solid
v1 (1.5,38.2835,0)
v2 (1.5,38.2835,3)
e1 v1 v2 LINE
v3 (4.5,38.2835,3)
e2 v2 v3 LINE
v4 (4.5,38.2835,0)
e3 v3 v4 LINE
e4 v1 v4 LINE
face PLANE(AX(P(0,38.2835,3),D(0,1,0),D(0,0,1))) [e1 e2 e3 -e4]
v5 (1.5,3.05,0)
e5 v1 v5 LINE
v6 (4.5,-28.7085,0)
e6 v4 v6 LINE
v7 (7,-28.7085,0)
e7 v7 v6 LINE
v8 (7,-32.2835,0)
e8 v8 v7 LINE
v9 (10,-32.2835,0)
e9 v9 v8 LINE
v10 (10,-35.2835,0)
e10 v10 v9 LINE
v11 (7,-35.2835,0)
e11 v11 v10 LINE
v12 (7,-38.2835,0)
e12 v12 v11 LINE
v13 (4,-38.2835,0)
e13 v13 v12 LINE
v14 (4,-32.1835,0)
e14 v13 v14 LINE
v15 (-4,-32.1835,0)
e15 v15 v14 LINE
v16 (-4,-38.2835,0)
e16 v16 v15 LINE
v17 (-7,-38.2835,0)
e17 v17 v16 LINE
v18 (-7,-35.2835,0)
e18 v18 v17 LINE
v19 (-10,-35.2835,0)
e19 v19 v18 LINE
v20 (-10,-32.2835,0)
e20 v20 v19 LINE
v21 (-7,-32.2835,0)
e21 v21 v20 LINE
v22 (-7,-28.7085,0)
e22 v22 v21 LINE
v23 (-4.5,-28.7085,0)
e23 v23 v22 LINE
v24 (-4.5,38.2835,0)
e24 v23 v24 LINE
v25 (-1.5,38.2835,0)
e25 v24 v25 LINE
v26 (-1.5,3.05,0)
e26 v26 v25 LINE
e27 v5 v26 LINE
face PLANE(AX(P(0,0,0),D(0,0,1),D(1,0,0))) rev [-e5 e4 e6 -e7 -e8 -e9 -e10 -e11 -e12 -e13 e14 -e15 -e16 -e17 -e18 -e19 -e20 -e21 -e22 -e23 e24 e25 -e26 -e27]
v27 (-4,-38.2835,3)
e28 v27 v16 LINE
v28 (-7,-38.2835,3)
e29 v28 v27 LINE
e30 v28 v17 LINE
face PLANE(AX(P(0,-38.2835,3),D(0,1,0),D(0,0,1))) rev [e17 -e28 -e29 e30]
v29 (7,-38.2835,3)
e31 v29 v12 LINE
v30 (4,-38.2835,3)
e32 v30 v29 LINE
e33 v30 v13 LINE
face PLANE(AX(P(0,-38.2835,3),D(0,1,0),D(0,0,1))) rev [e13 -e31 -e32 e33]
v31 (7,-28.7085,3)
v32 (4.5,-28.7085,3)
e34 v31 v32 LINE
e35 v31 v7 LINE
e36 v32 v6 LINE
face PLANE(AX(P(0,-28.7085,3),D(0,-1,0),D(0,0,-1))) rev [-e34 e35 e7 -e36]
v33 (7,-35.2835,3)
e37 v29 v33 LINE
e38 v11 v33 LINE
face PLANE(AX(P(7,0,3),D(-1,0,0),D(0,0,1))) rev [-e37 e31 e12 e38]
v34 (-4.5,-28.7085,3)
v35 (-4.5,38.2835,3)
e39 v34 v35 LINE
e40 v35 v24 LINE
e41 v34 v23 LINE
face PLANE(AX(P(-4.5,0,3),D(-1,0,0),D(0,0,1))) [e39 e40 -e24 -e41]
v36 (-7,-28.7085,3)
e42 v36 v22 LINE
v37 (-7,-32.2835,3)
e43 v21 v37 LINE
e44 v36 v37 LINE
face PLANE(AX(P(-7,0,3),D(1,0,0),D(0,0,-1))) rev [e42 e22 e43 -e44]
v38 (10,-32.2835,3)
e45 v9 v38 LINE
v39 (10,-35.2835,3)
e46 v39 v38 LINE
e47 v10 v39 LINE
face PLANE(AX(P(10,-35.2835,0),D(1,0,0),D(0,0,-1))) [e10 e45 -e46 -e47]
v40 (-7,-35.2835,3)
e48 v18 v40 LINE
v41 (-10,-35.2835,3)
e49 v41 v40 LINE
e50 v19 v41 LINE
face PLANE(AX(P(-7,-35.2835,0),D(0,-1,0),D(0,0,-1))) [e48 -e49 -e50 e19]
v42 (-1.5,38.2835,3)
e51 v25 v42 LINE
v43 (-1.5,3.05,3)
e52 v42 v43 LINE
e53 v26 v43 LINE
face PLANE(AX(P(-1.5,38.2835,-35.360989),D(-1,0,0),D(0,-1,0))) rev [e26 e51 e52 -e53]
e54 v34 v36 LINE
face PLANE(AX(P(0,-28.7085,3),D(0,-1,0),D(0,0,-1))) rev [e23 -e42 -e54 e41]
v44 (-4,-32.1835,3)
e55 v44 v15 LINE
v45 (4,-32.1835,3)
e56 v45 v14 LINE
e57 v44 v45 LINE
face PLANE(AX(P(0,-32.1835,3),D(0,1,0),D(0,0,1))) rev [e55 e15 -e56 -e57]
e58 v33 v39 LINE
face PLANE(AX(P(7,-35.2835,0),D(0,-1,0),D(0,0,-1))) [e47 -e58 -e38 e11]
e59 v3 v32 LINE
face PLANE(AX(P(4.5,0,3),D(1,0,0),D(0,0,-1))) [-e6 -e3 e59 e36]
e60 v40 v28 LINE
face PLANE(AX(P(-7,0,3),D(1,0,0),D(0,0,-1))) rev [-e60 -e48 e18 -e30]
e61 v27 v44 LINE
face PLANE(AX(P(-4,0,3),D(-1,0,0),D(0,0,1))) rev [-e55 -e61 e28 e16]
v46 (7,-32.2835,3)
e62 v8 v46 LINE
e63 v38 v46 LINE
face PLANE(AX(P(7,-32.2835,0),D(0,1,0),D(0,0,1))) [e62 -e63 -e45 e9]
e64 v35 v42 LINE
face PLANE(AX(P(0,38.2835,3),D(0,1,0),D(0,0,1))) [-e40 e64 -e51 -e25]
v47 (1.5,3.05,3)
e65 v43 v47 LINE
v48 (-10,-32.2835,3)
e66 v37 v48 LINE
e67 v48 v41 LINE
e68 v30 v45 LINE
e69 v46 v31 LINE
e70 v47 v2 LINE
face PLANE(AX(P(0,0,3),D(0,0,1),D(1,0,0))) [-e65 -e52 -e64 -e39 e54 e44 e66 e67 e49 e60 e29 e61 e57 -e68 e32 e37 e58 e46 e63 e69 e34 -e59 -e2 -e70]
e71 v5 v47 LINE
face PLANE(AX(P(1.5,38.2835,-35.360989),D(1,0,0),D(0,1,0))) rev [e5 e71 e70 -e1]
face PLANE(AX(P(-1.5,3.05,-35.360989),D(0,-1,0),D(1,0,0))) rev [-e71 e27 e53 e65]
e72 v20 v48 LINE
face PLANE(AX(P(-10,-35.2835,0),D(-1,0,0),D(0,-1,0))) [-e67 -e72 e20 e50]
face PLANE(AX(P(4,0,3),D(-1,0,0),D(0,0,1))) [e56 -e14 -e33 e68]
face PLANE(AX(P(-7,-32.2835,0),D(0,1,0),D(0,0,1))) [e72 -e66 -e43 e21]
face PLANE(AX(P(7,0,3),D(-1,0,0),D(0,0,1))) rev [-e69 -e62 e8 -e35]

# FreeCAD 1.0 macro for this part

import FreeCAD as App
import Part
import Sketcher

V = App.Vector

doc = App.newDocument("Part")
body = doc.addObject("PartDesign::Body", "Body")

# Sketch on XY plane
sketch1 = body.newObject("Sketcher::SketchObject", "Sketch")
sketch1.AttachmentSupport = (doc.getObject("XY_Plane"), [""])
sketch1.MapMode = "FlatFace"
sketch1.addGeometry([
    Part.LineSegment(V(4.5, 38.3, 0), V(-4.5, 38.3, 0)),  # 0
    Part.LineSegment(V(-4.5, 38.3, 0), V(-4.5, -28.7, 0)),  # 1
    Part.LineSegment(V(-4.5, -28.7, 0), V(-7, -28.7, 0)),  # 2
    Part.LineSegment(V(-7, -28.7, 0), V(-7, -38.3, 0)),  # 3
    Part.LineSegment(V(-7, -38.3, 0), V(-4, -38.3, 0)),  # 4
    Part.LineSegment(V(-4, -38.3, 0), V(-4, -32.2, 0)),  # 5
    Part.LineSegment(V(-4, -32.2, 0), V(4, -32.2, 0)),  # 6
    Part.LineSegment(V(4, -32.2, 0), V(4, -38.3, 0)),  # 7
    Part.LineSegment(V(4, -38.3, 0), V(7, -38.3, 0)),  # 8
    Part.LineSegment(V(7, -38.3, 0), V(7, -28.7, 0)),  # 9
    Part.LineSegment(V(7, -28.7, 0), V(4.5, -28.7, 0)),  # 10
    Part.LineSegment(V(4.5, -28.7, 0), V(4.5, 38.3, 0)),  # 11
], False)
sketch1.addConstraint([
    Sketcher.Constraint("Coincident", 0, 2, 1, 1),
    Sketcher.Constraint("Coincident", 1, 2, 2, 1),
    Sketcher.Constraint("Coincident", 2, 2, 3, 1),
    Sketcher.Constraint("Coincident", 3, 2, 4, 1),
    Sketcher.Constraint("Coincident", 4, 2, 5, 1),
    Sketcher.Constraint("Coincident", 5, 2, 6, 1),
    Sketcher.Constraint("Coincident", 6, 2, 7, 1),
    Sketcher.Constraint("Coincident", 7, 2, 8, 1),
    Sketcher.Constraint("Coincident", 8, 2, 9, 1),
    Sketcher.Constraint("Coincident", 9, 2, 10, 1),
    Sketcher.Constraint("Coincident", 10, 2, 11, 1),
    Sketcher.Constraint("Coincident", 11, 2, 0, 1),
    Sketcher.Constraint("Horizontal", 0),
    Sketcher.Constraint("Vertical", 1),
    Sketcher.Constraint("Horizontal", 2),
    Sketcher.Constraint("Vertical", 3),
    Sketcher.Constraint("Horizontal", 4),
    Sketcher.Constraint("Vertical", 5),
    Sketcher.Constraint("Horizontal", 6),
    Sketcher.Constraint("Vertical", 7),
    Sketcher.Constraint("Horizontal", 8),
    Sketcher.Constraint("Vertical", 9),
    Sketcher.Constraint("Horizontal", 10),
    Sketcher.Constraint("Vertical", 11),
    Sketcher.Constraint("Symmetric", 4, 2, 7, 2, -2),
    Sketcher.Constraint("Symmetric", 2, 2, 9, 2, -2),
    Sketcher.Constraint("Equal", 2, 10),
    Sketcher.Constraint("DistanceX", 0, 2, 0, 1, 9.0),
    Sketcher.Constraint("DistanceX", 4, 1, 4, 2, 3.0),
    Sketcher.Constraint("DistanceX", 6, 1, 6, 2, 8.0),
    Sketcher.Constraint("DistanceY", 5, 1, 5, 2, 6.1),
    Sketcher.Constraint("DistanceY", 1, 2, 1, 1, 66.992),
    Sketcher.Constraint("DistanceY", 3, 2, 3, 1, 9.575),
    Sketcher.Constraint("DistanceY", -1, 1, 0, 2, 38.2835),
])
pad1 = body.newObject("PartDesign::Pad", "Pad")
pad1.Profile = sketch1
pad1.Length = 3

# Sketch on XY plane
sketch2 = body.newObject("Sketcher::SketchObject", "Sketch001")
sketch2.AttachmentSupport = (doc.getObject("XY_Plane"), [""])
sketch2.MapMode = "FlatFace"
sketch2.AttachmentOffset = App.Placement(V(0, 0, 3), App.Rotation())
sketch2.addGeometry([
    Part.LineSegment(V(-1.5, 38.3, 0), V(-1.5, 3, 0)),
    Part.LineSegment(V(-1.5, 3, 0), V(1.5, 3, 0)),
    Part.LineSegment(V(1.5, 3, 0), V(1.5, 38.3, 0)),
    Part.LineSegment(V(1.5, 38.3, 0), V(-1.5, 38.3, 0)),
], False)
sketch2.addConstraint([
    Sketcher.Constraint("Coincident", 0, 2, 1, 1),
    Sketcher.Constraint("Coincident", 1, 2, 2, 1),
    Sketcher.Constraint("Coincident", 2, 2, 3, 1),
    Sketcher.Constraint("Coincident", 3, 2, 0, 1),
    Sketcher.Constraint("Vertical", 0),
    Sketcher.Constraint("Horizontal", 1),
    Sketcher.Constraint("Vertical", 2),
    Sketcher.Constraint("Horizontal", 3),
    Sketcher.Constraint("DistanceX", 1, 1, 1, 2, 3.0),
    Sketcher.Constraint("DistanceX", 0, 2, -1, 1, 1.5),
    Sketcher.Constraint("DistanceY", -1, 1, 0, 2, 3.05),
    Sketcher.Constraint("DistanceY", 0, 2, 0, 1, 35.2335),
])
pocket1 = body.newObject("PartDesign::Pocket", "Pocket")
pocket1.Profile = sketch2
pocket1.Length = 3

# Sketch on XY plane
sketch3 = body.newObject("Sketcher::SketchObject", "Sketch002")
sketch3.AttachmentSupport = (doc.getObject("XY_Plane"), [""])
sketch3.MapMode = "FlatFace"
sketch3.AttachmentOffset = App.Placement(V(0, 0, 3), App.Rotation())
sketch3.addGeometry([
    Part.LineSegment(V(-10, -32.3, 0), V(-10, -35.3, 0)),  # 0
    Part.LineSegment(V(-10, -35.3, 0), V(-7, -35.3, 0)),  # 1
    Part.LineSegment(V(-7, -35.3, 0), V(-7, -32.3, 0)),  # 2
    Part.LineSegment(V(-7, -32.3, 0), V(-10, -32.3, 0)),  # 3
    Part.LineSegment(V(7, -32.3, 0), V(7, -35.3, 0)),  # 4
    Part.LineSegment(V(7, -35.3, 0), V(10, -35.3, 0)),  # 5
    Part.LineSegment(V(10, -35.3, 0), V(10, -32.3, 0)),  # 6
    Part.LineSegment(V(10, -32.3, 0), V(7, -32.3, 0)),  # 7
], False)
sketch3.addConstraint([
    Sketcher.Constraint("Coincident", 0, 2, 1, 1),
    Sketcher.Constraint("Coincident", 1, 2, 2, 1),
    Sketcher.Constraint("Coincident", 2, 2, 3, 1),
    Sketcher.Constraint("Coincident", 3, 2, 0, 1),
    Sketcher.Constraint("Coincident", 4, 2, 5, 1),
    Sketcher.Constraint("Coincident", 5, 2, 6, 1),
    Sketcher.Constraint("Coincident", 6, 2, 7, 1),
    Sketcher.Constraint("Coincident", 7, 2, 4, 1),
    Sketcher.Constraint("Vertical", 0),
    Sketcher.Constraint("Horizontal", 1),
    Sketcher.Constraint("Vertical", 2),
    Sketcher.Constraint("Horizontal", 3),
    Sketcher.Constraint("Vertical", 4),
    Sketcher.Constraint("Horizontal", 5),
    Sketcher.Constraint("Vertical", 6),
    Sketcher.Constraint("Horizontal", 7),
    Sketcher.Constraint("Symmetric", 1, 2, 4, 2, -2),
    Sketcher.Constraint("Symmetric", 3, 2, 6, 2, -2),
    Sketcher.Constraint("Equal", 7, 0),
    Sketcher.Constraint("DistanceX", 1, 1, 1, 2, 3.0),
    Sketcher.Constraint("DistanceX", 0, 2, -1, 1, 10.0),
    Sketcher.Constraint("DistanceY", 0, 2, -1, 1, 35.2835),
])
pad2 = body.newObject("PartDesign::Pad", "Pad001")
pad2.Profile = sketch3
pad2.Length = 3
pad2.Reversed = True

doc.recompute()
